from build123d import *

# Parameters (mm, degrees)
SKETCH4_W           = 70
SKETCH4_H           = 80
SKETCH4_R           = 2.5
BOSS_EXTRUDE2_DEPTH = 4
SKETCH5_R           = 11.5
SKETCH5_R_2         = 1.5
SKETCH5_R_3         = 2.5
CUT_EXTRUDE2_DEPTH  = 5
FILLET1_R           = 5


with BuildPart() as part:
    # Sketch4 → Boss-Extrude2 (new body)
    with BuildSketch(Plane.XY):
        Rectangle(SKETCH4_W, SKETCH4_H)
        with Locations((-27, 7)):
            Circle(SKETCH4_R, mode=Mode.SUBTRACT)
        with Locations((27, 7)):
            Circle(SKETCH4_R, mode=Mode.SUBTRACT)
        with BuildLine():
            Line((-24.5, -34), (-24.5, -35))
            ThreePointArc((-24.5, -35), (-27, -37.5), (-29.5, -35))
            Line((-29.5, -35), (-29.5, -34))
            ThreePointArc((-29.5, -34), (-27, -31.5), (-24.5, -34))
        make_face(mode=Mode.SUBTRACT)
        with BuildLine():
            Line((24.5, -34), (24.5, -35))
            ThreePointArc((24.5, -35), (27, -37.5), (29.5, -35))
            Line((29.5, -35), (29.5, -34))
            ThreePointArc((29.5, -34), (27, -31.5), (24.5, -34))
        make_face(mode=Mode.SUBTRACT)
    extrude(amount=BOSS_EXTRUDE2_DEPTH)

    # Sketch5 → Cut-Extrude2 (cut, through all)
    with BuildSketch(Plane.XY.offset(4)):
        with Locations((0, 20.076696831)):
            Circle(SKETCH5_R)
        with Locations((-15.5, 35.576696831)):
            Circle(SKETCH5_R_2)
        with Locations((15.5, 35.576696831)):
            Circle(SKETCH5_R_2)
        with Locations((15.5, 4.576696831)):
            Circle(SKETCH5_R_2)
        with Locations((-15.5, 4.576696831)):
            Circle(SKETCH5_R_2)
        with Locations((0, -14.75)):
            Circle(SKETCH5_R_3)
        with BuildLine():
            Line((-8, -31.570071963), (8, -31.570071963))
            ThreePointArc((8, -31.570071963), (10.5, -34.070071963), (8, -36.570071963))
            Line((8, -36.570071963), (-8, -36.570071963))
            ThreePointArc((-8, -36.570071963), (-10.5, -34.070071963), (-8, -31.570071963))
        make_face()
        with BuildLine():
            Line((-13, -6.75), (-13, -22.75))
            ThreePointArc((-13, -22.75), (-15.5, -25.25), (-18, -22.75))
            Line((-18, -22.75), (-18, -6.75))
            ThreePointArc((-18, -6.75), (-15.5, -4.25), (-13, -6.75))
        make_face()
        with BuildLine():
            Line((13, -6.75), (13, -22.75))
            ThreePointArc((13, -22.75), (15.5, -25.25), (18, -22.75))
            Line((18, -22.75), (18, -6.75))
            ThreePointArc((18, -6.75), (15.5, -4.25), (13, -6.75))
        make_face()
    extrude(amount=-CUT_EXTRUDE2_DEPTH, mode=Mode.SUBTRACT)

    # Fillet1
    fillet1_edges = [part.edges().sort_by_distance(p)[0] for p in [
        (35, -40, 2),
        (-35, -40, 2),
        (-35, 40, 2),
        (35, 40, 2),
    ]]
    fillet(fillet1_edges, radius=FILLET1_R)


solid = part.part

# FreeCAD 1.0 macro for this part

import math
import FreeCAD as App
import Part
import Sketcher

V = App.Vector
Q = App.Units.Quantity


def edges_at(feature, points):
    """Names of the edges that pass closest to the given points."""
    edges = feature.Shape.Edges
    near = lambda p: min(range(len(edges)), key=lambda i: edges[i].distToShape(Part.Vertex(*p))[0])
    return sorted({f"Edge{near(p) + 1}" for p in points})


def add_polygon(sketch, points):
    """Adds a closed chain of lines whose ends are joined by coincident constraints."""
    first, n = sketch.GeometryCount, len(points)
    for a, b in zip(points, points[1:] + points[:1]):
        sketch.addGeometry(Part.LineSegment(App.Vector(*a, 0), App.Vector(*b, 0)), False)
    for i in range(n):
        sketch.addConstraint(Sketcher.Constraint("Coincident", first + i, 2, first + (i + 1) % n, 1))

doc = App.newDocument("Part")
body = doc.addObject("PartDesign::Body", "Body")

sketch1 = body.newObject("Sketcher::SketchObject", "Sketch")
sketch1.AttachmentSupport = (doc.getObject("XY_Plane"), [""])
sketch1.MapMode = "FlatFace"
add_polygon(sketch1, [(-35, 40), (-35, -40), (35, -40), (35, 40)])
sketch1.addGeometry(Part.ArcOfCircle(Part.Circle(V(-27, -34, 0), V(0, 0, 1), 2.5), math.radians(0), math.radians(180)), False)
sketch1.addGeometry(Part.LineSegment(V(-24.5, -34, 0), V(-24.5, -35, 0)), False)
sketch1.addGeometry(Part.ArcOfCircle(Part.Circle(V(-27, -35, 0), V(0, 0, 1), 2.5), math.radians(180), math.radians(360)), False)
sketch1.addGeometry(Part.LineSegment(V(-29.5, -35, 0), V(-29.5, -34, 0)), False)
sketch1.addGeometry(Part.LineSegment(V(24.5, -35, 0), V(24.5, -34, 0)), False)
sketch1.addGeometry(Part.ArcOfCircle(Part.Circle(V(27, -34, 0), V(0, 0, 1), 2.5), math.radians(0), math.radians(180)), False)
sketch1.addGeometry(Part.LineSegment(V(29.5, -34, 0), V(29.5, -35, 0)), False)
sketch1.addGeometry(Part.ArcOfCircle(Part.Circle(V(27, -35, 0), V(0, 0, 1), 2.5), math.radians(180), math.radians(360)), False)
sketch1.addGeometry(Part.Circle(V(-27, 7, 0), V(0, 0, 1), 2.5), False)
sketch1.addGeometry(Part.Circle(V(27, 7, 0), V(0, 0, 1), 2.5), False)
sketch1.addConstraint(Sketcher.Constraint("Tangent", 4, 1, 5, 1))
sketch1.addConstraint(Sketcher.Constraint("Tangent", 5, 2, 6, 2))
sketch1.addConstraint(Sketcher.Constraint("Tangent", 6, 1, 7, 1))
sketch1.addConstraint(Sketcher.Constraint("Tangent", 7, 2, 4, 2))
sketch1.addConstraint(Sketcher.Constraint("Tangent", 8, 2, 9, 2))
sketch1.addConstraint(Sketcher.Constraint("Tangent", 9, 1, 10, 1))
sketch1.addConstraint(Sketcher.Constraint("Tangent", 10, 2, 11, 2))
sketch1.addConstraint(Sketcher.Constraint("Tangent", 11, 1, 8, 1))
sketch1.addConstraint(Sketcher.Constraint("Vertical", 0))
sketch1.addConstraint(Sketcher.Constraint("Horizontal", 1))
sketch1.addConstraint(Sketcher.Constraint("Vertical", 2))
sketch1.addConstraint(Sketcher.Constraint("Horizontal", 3))
sketch1.addConstraint(Sketcher.Constraint("Vertical", 5))
sketch1.addConstraint(Sketcher.Constraint("Vertical", 7))
sketch1.addConstraint(Sketcher.Constraint("Vertical", 8))
sketch1.addConstraint(Sketcher.Constraint("Vertical", 10))
sketch1.addConstraint(Sketcher.Constraint("Equal", 6, 9))
sketch1.addConstraint(Sketcher.Constraint("Equal", 11, 12))
sketch1.addConstraint(Sketcher.Constraint("Equal", 12, 13))
sketch1.addConstraint(Sketcher.Constraint("Symmetric", 0, 2, 2, 2, -1, 1))
sketch1.addConstraint(Sketcher.Constraint("Symmetric", 4, 3, 9, 3, -2))
sketch1.addConstraint(Sketcher.Constraint("Symmetric", 12, 3, 13, 3, -2))
sketch1.addConstraint(Sketcher.Constraint("Horizontal", 6, 3, 11, 3))
sketch1.addConstraint(Sketcher.Constraint("Vertical", 6, 3, 12, 3))
sketch1.addConstraint(Sketcher.Constraint("Diameter", 12, Q("5 mm")))
sketch1.addConstraint(Sketcher.Constraint("DistanceX", 1, 1, 1, 2, Q("70 mm")))
sketch1.addConstraint(Sketcher.Constraint("DistanceY", 0, 2, 0, 1, Q("80 mm")))
sketch1.addConstraint(Sketcher.Constraint("DistanceY", 5, 2, 5, 1, Q("1 mm")))
sketch1.addConstraint(Sketcher.Constraint("DistanceX", 4, 3, -1, 1, Q("27 mm")))
sketch1.addConstraint(Sketcher.Constraint("DistanceY", 4, 3, -1, 1, Q("34 mm")))
sketch1.addConstraint(Sketcher.Constraint("DistanceY", -1, 1, 12, 3, Q("7 mm")))
pad1 = body.newObject("PartDesign::Pad", "Pad")
pad1.Profile = sketch1
pad1.Length = 4

sketch2 = body.newObject("Sketcher::SketchObject", "Sketch001")
sketch2.AttachmentSupport = (doc.getObject("XY_Plane"), [""])
sketch2.MapMode = "FlatFace"
sketch2.AttachmentOffset = App.Placement(V(0, 0, 4), App.Rotation())
sketch2.addGeometry(Part.Circle(V(0, 20.076697, 0), V(0, 0, 1), 11.5), False)
sketch2.addGeometry(Part.Circle(V(-15.5, 35.576697, 0), V(0, 0, 1), 1.5), False)
sketch2.addGeometry(Part.Circle(V(15.5, 35.576697, 0), V(0, 0, 1), 1.5), False)
sketch2.addGeometry(Part.Circle(V(15.5, 4.576697, 0), V(0, 0, 1), 1.5), False)
sketch2.addGeometry(Part.Circle(V(-15.5, 4.576697, 0), V(0, 0, 1), 1.5), False)
sketch2.addGeometry(Part.Circle(V(0, -14.75, 0), V(0, 0, 1), 2.5), False)
sketch2.addGeometry(Part.LineSegment(V(8, -31.570072, 0), V(-8, -31.570072, 0)), False)
sketch2.addGeometry(Part.ArcOfCircle(Part.Circle(V(-8, -34.070072, 0), V(0, 0, 1), 2.5), math.radians(90), math.radians(270)), False)
sketch2.addGeometry(Part.LineSegment(V(-8, -36.570072, 0), V(8, -36.570072, 0)), False)
sketch2.addGeometry(Part.ArcOfCircle(Part.Circle(V(8, -34.070072, 0), V(0, 0, 1), 2.5), math.radians(-90), math.radians(90)), False)
sketch2.addGeometry(Part.LineSegment(V(-13, -22.75, 0), V(-13, -6.75, 0)), False)
sketch2.addGeometry(Part.ArcOfCircle(Part.Circle(V(-15.5, -6.75, 0), V(0, 0, 1), 2.5), math.radians(0), math.radians(180)), False)
sketch2.addGeometry(Part.LineSegment(V(-18, -6.75, 0), V(-18, -22.75, 0)), False)
sketch2.addGeometry(Part.ArcOfCircle(Part.Circle(V(-15.5, -22.75, 0), V(0, 0, 1), 2.5), math.radians(180), math.radians(360)), False)
sketch2.addGeometry(Part.LineSegment(V(13, -6.75, 0), V(13, -22.75, 0)), False)
sketch2.addGeometry(Part.ArcOfCircle(Part.Circle(V(15.5, -22.75, 0), V(0, 0, 1), 2.5), math.radians(180), math.radians(360)), False)
sketch2.addGeometry(Part.LineSegment(V(18, -22.75, 0), V(18, -6.75, 0)), False)
sketch2.addGeometry(Part.ArcOfCircle(Part.Circle(V(15.5, -6.75, 0), V(0, 0, 1), 2.5), math.radians(0), math.radians(180)), False)
sketch2.addConstraint(Sketcher.Constraint("Tangent", 6, 2, 7, 1))
sketch2.addConstraint(Sketcher.Constraint("Tangent", 7, 2, 8, 1))
sketch2.addConstraint(Sketcher.Constraint("Tangent", 8, 2, 9, 1))
sketch2.addConstraint(Sketcher.Constraint("Tangent", 9, 2, 6, 1))
sketch2.addConstraint(Sketcher.Constraint("Tangent", 10, 2, 11, 1))
sketch2.addConstraint(Sketcher.Constraint("Tangent", 11, 2, 12, 1))
sketch2.addConstraint(Sketcher.Constraint("Tangent", 12, 2, 13, 1))
sketch2.addConstraint(Sketcher.Constraint("Tangent", 13, 2, 10, 1))
sketch2.addConstraint(Sketcher.Constraint("Tangent", 14, 2, 15, 1))
sketch2.addConstraint(Sketcher.Constraint("Tangent", 15, 2, 16, 1))
sketch2.addConstraint(Sketcher.Constraint("Tangent", 16, 2, 17, 1))
sketch2.addConstraint(Sketcher.Constraint("Tangent", 17, 2, 14, 1))
sketch2.addConstraint(Sketcher.Constraint("Horizontal", 6))
sketch2.addConstraint(Sketcher.Constraint("Horizontal", 8))
sketch2.addConstraint(Sketcher.Constraint("Vertical", 10))
sketch2.addConstraint(Sketcher.Constraint("Vertical", 12))
sketch2.addConstraint(Sketcher.Constraint("Vertical", 14))
sketch2.addConstraint(Sketcher.Constraint("Vertical", 16))
sketch2.addConstraint(Sketcher.Constraint("Equal", 1, 2))
sketch2.addConstraint(Sketcher.Constraint("Equal", 2, 3))
sketch2.addConstraint(Sketcher.Constraint("Equal", 3, 4))
sketch2.addConstraint(Sketcher.Constraint("Equal", 5, 7))
sketch2.addConstraint(Sketcher.Constraint("Equal", 9, 11))
sketch2.addConstraint(Sketcher.Constraint("Equal", 13, 15))
sketch2.addConstraint(Sketcher.Constraint("Symmetric", 1, 3, 2, 3, -2))
sketch2.addConstraint(Sketcher.Constraint("Symmetric", 3, 3, 4, 3, -2))
sketch2.addConstraint(Sketcher.Constraint("Symmetric", 13, 3, 15, 3, -2))
sketch2.addConstraint(Sketcher.Constraint("PointOnObject", 0, 3, -2))
sketch2.addConstraint(Sketcher.Constraint("PointOnObject", 5, 3, -2))
sketch2.addConstraint(Sketcher.Constraint("Horizontal", 11, 3, 17, 3))
sketch2.addConstraint(Sketcher.Constraint("Vertical", 2, 3, 3, 3))
sketch2.addConstraint(Sketcher.Constraint("Vertical", 4, 3, 11, 3))
sketch2.addConstraint(Sketcher.Constraint("Equal", 8, 10))
sketch2.addConstraint(Sketcher.Constraint("Diameter", 0, Q("23 mm")))
sketch2.addConstraint(Sketcher.Constraint("Diameter", 1, Q("3 mm")))
sketch2.addConstraint(Sketcher.Constraint("Diameter", 5, Q("5 mm")))
sketch2.addConstraint(Sketcher.Constraint("DistanceX", 6, 2, 6, 1, Q("16 mm")))
sketch2.addConstraint(Sketcher.Constraint("DistanceX", 7, 3, -1, 1, Q("8 mm")))
sketch2.addConstraint(Sketcher.Constraint("DistanceX", 10, 2, -1, 1, Q("13 mm")))
sketch2.addConstraint(Sketcher.Constraint("DistanceY", 3, 3, 2, 3, Q("31 mm")))
sketch2.addConstraint(Sketcher.Constraint("DistanceY", 5, 3, 11, 3, Q("8 mm")))
sketch2.addConstraint(Sketcher.Constraint("DistanceY", 0, 3, 1, 3, Q("15.5 mm")))
sketch2.addConstraint(Sketcher.Constraint("DistanceY", 5, 3, -1, 1, Q("14.75 mm")))
sketch2.addConstraint(Sketcher.Constraint("DistanceY", 7, 3, -1, 1, Q("34.070072 mm")))
sketch2.addConstraint(Sketcher.Constraint("DistanceY", 7, 3, 4, 3, Q("38.646769 mm")))
pocket1 = body.newObject("PartDesign::Pocket", "Pocket")
pocket1.Profile = sketch2
pocket1.Type = "ThroughAll"
doc.recompute()

fillet = body.newObject("PartDesign::Fillet", "Fillet")
fillet.Base = (pocket1, edges_at(pocket1, [
    (35, -40, 2),
    (-35, -40, 2),
    (-35, 40, 2),
    (35, 40, 2),
]))
fillet.Radius = 5

doc.recompute()
